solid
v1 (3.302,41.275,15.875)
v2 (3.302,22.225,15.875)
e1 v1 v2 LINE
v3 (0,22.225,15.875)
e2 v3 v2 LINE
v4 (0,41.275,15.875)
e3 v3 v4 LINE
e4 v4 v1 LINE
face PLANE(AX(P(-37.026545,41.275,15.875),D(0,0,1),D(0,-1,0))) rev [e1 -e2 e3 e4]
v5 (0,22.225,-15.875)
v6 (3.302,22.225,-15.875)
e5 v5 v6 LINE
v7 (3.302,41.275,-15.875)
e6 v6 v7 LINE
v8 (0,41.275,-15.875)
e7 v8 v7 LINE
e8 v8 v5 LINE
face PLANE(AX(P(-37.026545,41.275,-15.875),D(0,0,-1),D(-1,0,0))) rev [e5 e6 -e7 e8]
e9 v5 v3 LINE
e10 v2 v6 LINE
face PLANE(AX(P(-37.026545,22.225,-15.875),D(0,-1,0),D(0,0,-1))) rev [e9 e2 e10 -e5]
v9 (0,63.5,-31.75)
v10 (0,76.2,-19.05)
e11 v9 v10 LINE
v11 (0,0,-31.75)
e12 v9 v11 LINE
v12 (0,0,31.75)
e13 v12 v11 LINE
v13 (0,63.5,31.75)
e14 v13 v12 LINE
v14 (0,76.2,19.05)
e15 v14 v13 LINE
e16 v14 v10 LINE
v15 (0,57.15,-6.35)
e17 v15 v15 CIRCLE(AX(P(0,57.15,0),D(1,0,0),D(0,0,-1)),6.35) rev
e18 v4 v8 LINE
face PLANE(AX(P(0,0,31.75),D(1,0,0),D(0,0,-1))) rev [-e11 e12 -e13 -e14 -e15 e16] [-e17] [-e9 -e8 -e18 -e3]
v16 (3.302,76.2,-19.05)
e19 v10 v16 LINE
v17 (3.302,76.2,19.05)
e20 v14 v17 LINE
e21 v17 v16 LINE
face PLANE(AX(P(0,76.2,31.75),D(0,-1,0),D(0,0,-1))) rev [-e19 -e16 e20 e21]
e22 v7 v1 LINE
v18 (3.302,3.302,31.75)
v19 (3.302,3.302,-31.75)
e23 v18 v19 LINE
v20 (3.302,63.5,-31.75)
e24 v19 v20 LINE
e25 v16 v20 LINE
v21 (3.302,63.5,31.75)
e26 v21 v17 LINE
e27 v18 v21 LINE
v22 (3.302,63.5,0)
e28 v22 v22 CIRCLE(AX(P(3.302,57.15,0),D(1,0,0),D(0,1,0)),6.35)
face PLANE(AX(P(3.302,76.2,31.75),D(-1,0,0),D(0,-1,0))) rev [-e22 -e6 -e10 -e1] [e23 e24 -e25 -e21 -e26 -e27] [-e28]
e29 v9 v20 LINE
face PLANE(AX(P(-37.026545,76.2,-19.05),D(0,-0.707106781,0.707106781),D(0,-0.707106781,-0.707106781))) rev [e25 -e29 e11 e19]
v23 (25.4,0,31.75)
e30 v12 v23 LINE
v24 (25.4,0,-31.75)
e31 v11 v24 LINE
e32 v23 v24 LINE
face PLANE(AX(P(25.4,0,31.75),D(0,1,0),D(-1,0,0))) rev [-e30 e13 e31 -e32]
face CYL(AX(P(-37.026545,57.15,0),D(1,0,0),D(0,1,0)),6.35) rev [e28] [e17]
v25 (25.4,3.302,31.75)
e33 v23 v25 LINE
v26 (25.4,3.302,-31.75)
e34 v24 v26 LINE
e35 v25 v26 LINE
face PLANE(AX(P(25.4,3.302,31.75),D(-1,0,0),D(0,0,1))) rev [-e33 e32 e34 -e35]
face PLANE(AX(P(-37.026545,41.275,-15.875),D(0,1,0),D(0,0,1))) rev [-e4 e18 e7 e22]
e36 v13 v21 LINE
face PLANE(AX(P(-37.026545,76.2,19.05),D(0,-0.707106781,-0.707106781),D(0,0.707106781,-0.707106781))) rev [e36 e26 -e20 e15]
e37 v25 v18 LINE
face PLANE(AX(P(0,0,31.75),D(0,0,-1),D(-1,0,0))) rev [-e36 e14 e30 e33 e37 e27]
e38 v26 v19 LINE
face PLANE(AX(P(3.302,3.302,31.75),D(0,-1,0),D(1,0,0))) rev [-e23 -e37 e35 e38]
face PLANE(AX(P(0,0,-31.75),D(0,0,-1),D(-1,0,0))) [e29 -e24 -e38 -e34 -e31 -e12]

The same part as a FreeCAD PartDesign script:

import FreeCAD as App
import Part
import Sketcher
Q = App.Units.Quantity


def add_polygon(sketch, points):
    """Adds a closed chain of lines whose ends are joined by coincident constraints."""
    first, n = sketch.GeometryCount, len(points)
    for a, b in zip(points, points[1:] + points[:1]):
        sketch.addGeometry(Part.LineSegment(App.Vector(*a, 0), App.Vector(*b, 0)), False)
    for i in range(n):
        sketch.addConstraint(Sketcher.Constraint("Coincident", first + i, 2, first + (i + 1) % n, 1))

doc = App.newDocument("Part")
body = doc.addObject("PartDesign::Body", "Body")

# Sketch on XY plane
sketch1 = doc.addObject("Sketcher::SketchObject", "Sketch")
body.addObject(sketch1)
sketch1.AttachmentSupport = (doc.XY_Plane, [""])
sketch1.MapMode = "FlatFace"
add_polygon(sketch1, [(0, 76.2), (0, 0), (25.4, 0), (25.4, 3.3), (3.3, 3.3), (3.3, 76.2)])  # lines 0-5
sketch1.addConstraint([
    Sketcher.Constraint("Vertical", 0),
    Sketcher.Constraint("Horizontal", 1),
    Sketcher.Constraint("Vertical", 2),
    Sketcher.Constraint("Horizontal", 3),
    Sketcher.Constraint("Vertical", 4),
    Sketcher.Constraint("Horizontal", 5),
    Sketcher.Constraint("Coincident", 0, 2, -1, 1),
    Sketcher.Constraint("Equal", 5, 2),
    Sketcher.Constraint("DistanceX", 1, 1, 1, 2, Q("1 in")),
    Sketcher.Constraint("DistanceY", 0, 2, 0, 1, Q("3 in")),
    Sketcher.Constraint("DistanceX", 3, 2, 3, 1, Q("0.87 in")),
])
pad1 = doc.addObject("PartDesign::Pad", "Pad")
body.addObject(pad1)
pad1.Profile = sketch1
pad1.Length = Q("2.5 in")
pad1.Midplane = True

# Sketch on YZ plane
sketch2 = doc.addObject("Sketcher::SketchObject", "Sketch001")
body.addObject(sketch2)
sketch2.AttachmentSupport = (doc.YZ_Plane, [""])
sketch2.MapMode = "FlatFace"
sketch2.AttachmentOffset = App.Placement(App.Vector(0, 0, 0.13 * 25.4), App.Rotation())
sketch2.addGeometry(Part.Circle(App.Vector(57, 0, 0), App.Vector(0, 0, 1), 6), False)  # 0
add_polygon(sketch2, [(76, 32), (64, 32), (76, 19)])  # lines 1-3
add_polygon(sketch2, [(41, 16), (22, 16), (22, -16), (41, -16)])  # lines 4-7
add_polygon(sketch2, [(76, -19), (64, -32), (76, -32)])  # lines 8-10
sketch2.addConstraint([
    Sketcher.Constraint("Horizontal", 1),
    Sketcher.Constraint("Vertical", 3),
    Sketcher.Constraint("Horizontal", 4),
    Sketcher.Constraint("Vertical", 5),
    Sketcher.Constraint("Horizontal", 6),
    Sketcher.Constraint("Vertical", 7),
    Sketcher.Constraint("Horizontal", 9),
    Sketcher.Constraint("Vertical", 10),
    Sketcher.Constraint("Symmetric", 1, 2, 8, 2, -1),
    Sketcher.Constraint("Symmetric", 2, 2, 10, 2, -1),
    Sketcher.Constraint("PointOnObject", 0, 3, -1),
    Sketcher.Constraint("Perpendicular", 2, 8),
    Sketcher.Constraint("Diameter", 0, Q("0.5 in")),
    Sketcher.Constraint("DistanceX", 1, 2, 1, 1, Q("0.5 in")),
    Sketcher.Constraint("DistanceX", -1, 1, 2, 2, Q("3 in")),
    Sketcher.Constraint("DistanceY", 8, 2, 2, 2, Q("2 in")),
    Sketcher.Constraint("DistanceX", 4, 2, 4, 1, Q("0.75 in")),
    Sketcher.Constraint("DistanceY", 5, 2, 5, 1, Q("1.25 in")),
    Sketcher.Constraint("DistanceX", -1, 1, 0, 3, Q("2.25 in")),
    Sketcher.Constraint("DistanceX", -1, 1, 4, 2, Q("0.875 in")),
    Sketcher.Constraint("DistanceY", -1, 1, 4, 2, Q("0.625 in")),
])
pocket1 = doc.addObject("PartDesign::Pocket", "Pocket")
body.addObject(pocket1)
pocket1.Profile = sketch2
pocket1.Length = Q("0.13 in")

doc.recompute()
